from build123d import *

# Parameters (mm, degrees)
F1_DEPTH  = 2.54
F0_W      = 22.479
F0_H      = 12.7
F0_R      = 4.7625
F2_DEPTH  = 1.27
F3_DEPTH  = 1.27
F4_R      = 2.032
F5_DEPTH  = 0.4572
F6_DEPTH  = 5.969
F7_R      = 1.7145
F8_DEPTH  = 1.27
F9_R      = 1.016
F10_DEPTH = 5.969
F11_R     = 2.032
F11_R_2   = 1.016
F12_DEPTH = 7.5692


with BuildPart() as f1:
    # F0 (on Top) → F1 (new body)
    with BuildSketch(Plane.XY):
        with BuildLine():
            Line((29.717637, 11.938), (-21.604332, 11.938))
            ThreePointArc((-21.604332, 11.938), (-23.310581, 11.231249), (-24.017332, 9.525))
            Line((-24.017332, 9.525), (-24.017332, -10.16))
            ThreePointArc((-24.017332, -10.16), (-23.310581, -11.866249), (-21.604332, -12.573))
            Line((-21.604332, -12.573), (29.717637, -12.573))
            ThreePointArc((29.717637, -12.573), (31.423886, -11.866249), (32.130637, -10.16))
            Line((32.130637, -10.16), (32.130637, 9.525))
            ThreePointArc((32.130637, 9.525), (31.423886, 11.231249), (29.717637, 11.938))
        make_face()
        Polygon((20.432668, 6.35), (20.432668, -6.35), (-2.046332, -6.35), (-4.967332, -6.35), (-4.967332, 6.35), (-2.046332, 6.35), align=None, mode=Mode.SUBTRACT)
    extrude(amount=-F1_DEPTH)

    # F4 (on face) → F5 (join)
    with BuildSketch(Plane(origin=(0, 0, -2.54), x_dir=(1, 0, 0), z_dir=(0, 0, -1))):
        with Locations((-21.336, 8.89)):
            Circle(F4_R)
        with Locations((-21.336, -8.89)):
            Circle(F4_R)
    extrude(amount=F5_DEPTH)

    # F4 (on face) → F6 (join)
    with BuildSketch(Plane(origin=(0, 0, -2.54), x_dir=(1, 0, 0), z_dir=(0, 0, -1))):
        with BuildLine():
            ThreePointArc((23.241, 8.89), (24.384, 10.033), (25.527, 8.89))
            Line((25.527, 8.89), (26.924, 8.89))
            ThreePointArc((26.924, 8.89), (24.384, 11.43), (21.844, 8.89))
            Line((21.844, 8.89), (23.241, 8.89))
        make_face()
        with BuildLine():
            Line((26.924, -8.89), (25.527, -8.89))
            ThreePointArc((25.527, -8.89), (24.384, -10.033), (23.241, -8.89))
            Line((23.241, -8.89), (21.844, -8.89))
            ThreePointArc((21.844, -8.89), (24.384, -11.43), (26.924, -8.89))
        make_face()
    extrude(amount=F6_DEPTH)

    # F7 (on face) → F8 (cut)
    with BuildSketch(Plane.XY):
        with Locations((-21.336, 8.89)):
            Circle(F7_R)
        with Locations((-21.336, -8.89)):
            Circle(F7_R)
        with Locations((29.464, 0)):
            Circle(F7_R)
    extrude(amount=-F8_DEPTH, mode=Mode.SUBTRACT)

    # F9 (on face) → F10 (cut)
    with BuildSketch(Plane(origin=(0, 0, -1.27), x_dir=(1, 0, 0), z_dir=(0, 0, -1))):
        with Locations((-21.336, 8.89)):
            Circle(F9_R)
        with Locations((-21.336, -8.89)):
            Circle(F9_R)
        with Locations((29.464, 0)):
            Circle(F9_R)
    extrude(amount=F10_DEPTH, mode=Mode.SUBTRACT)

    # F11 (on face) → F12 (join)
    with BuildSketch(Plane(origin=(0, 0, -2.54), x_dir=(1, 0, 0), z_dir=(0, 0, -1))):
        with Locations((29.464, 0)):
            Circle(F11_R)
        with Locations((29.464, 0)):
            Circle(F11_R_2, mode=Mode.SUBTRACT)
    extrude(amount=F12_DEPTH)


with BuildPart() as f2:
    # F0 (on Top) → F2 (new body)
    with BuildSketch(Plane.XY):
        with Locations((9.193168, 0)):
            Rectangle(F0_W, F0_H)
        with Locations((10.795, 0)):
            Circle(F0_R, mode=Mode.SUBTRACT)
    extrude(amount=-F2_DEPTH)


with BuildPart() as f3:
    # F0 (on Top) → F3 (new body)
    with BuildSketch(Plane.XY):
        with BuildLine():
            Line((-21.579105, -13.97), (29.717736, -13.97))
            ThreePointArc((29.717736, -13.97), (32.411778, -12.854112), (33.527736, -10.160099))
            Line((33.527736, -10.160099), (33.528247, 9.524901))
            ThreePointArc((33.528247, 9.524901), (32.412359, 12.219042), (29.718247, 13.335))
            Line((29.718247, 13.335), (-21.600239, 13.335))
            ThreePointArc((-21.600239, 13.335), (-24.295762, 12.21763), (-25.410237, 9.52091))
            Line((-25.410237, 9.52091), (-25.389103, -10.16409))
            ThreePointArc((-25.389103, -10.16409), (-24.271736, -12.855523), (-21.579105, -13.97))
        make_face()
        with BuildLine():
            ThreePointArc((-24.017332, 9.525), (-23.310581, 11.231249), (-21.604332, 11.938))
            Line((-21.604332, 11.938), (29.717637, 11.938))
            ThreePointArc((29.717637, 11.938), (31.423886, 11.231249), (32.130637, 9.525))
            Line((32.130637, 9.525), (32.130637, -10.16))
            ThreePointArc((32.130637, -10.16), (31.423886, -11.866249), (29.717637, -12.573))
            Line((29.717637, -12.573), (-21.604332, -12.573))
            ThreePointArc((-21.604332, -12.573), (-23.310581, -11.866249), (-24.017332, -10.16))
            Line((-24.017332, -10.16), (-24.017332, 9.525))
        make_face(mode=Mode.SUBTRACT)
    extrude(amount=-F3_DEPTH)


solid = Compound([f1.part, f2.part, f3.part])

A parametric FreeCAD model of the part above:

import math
import FreeCAD as App
import Part
import Sketcher

V = App.Vector
Q = App.Units.Quantity

doc = App.newDocument("Part")
body = doc.addObject("PartDesign::Body", "Body")

sketch1 = body.newObject("Sketcher::SketchObject", "Sketch")
sketch1.AttachmentSupport = (doc.getObject("XY_Plane"), [""])
sketch1.MapMode = "FlatFace"
sketch1.addGeometry(Part.LineSegment(V(29.7, 11.9, 0), V(-21.6, 11.9, 0)), False)
sketch1.addGeometry(Part.ArcOfCircle(Part.Circle(V(-21.6, 9.5, 0), V(0, 0, 1), 2.4), math.radians(90), math.radians(180)), False)
sketch1.addGeometry(Part.LineSegment(V(-24, 9.5, 0), V(-24, -10.2, 0)), False)
sketch1.addGeometry(Part.ArcOfCircle(Part.Circle(V(-21.6, -10.2, 0), V(0, 0, 1), 2.4), math.radians(180), math.radians(270)), False)
sketch1.addGeometry(Part.LineSegment(V(-21.6, -12.6, 0), V(29.7, -12.6, 0)), False)
sketch1.addGeometry(Part.ArcOfCircle(Part.Circle(V(29.7, -10.2, 0), V(0, 0, 1), 2.4), math.radians(-90), math.radians(0)), False)
sketch1.addGeometry(Part.LineSegment(V(32.1, -10.2, 0), V(32.1, 9.5, 0)), False)
sketch1.addGeometry(Part.ArcOfCircle(Part.Circle(V(29.7, 9.5, 0), V(0, 0, 1), 2.4), math.radians(0), math.radians(90)), False)
sketch1.addGeometry(Part.LineSegment(V(-5, 6.3, 0), V(20.4, 6.3, 0)), False)
sketch1.addGeometry(Part.LineSegment(V(20.4, 6.3, 0), V(20.4, -6.3, 0)), False)
sketch1.addGeometry(Part.LineSegment(V(20.4, -6.3, 0), V(-5, -6.3, 0)), False)
sketch1.addGeometry(Part.LineSegment(V(-5, -6.3, 0), V(-5, 6.3, 0)), False)
sketch1.addConstraint(Sketcher.Constraint("Tangent", 0, 2, 1, 1))
sketch1.addConstraint(Sketcher.Constraint("Tangent", 1, 2, 2, 1))
sketch1.addConstraint(Sketcher.Constraint("Tangent", 2, 2, 3, 1))
sketch1.addConstraint(Sketcher.Constraint("Tangent", 3, 2, 4, 1))
sketch1.addConstraint(Sketcher.Constraint("Tangent", 4, 2, 5, 1))
sketch1.addConstraint(Sketcher.Constraint("Tangent", 5, 2, 6, 1))
sketch1.addConstraint(Sketcher.Constraint("Tangent", 6, 2, 7, 1))
sketch1.addConstraint(Sketcher.Constraint("Tangent", 7, 2, 0, 1))
sketch1.addConstraint(Sketcher.Constraint("Coincident", 8, 2, 9, 1))
sketch1.addConstraint(Sketcher.Constraint("Coincident", 9, 2, 10, 1))
sketch1.addConstraint(Sketcher.Constraint("Coincident", 10, 2, 11, 1))
sketch1.addConstraint(Sketcher.Constraint("Coincident", 11, 2, 8, 1))
sketch1.addConstraint(Sketcher.Constraint("Horizontal", 0))
sketch1.addConstraint(Sketcher.Constraint("Vertical", 2))
sketch1.addConstraint(Sketcher.Constraint("Horizontal", 4))
sketch1.addConstraint(Sketcher.Constraint("Vertical", 6))
sketch1.addConstraint(Sketcher.Constraint("Horizontal", 8))
sketch1.addConstraint(Sketcher.Constraint("Vertical", 9))
sketch1.addConstraint(Sketcher.Constraint("Horizontal", 10))
sketch1.addConstraint(Sketcher.Constraint("Vertical", 11))
sketch1.addConstraint(Sketcher.Constraint("Equal", 1, 3))
sketch1.addConstraint(Sketcher.Constraint("Equal", 3, 5))
sketch1.addConstraint(Sketcher.Constraint("Equal", 5, 7))
sketch1.addConstraint(Sketcher.Constraint("DistanceX", 8, 1, 8, 2, Q("1 in")))
sketch1.addConstraint(Sketcher.Constraint("DistanceY", 9, 2, 9, 1, Q("0.5 in")))
sketch1.addConstraint(Sketcher.Constraint("Radius", 1, Q("0.095 in")))
sketch1.addConstraint(Sketcher.Constraint("DistanceY", 3, 3, -1, 1, Q("0.4 in")))
sketch1.addConstraint(Sketcher.Constraint("DistanceY", 2, 2, 2, 1, Q("0.775 in")))
sketch1.addConstraint(Sketcher.Constraint("DistanceY", -1, 1, 8, 2, Q("0.25 in")))
sketch1.addConstraint(Sketcher.Constraint("DistanceX", 2, 2, 10, 2, Q("0.75 in")))
sketch1.addConstraint(Sketcher.Constraint("DistanceX", 0, 2, 0, 1, 51.321969))
sketch1.addConstraint(Sketcher.Constraint("DistanceX", -1, 1, 5, 3, 29.717638))
pad1 = body.newObject("PartDesign::Pad", "Pad")
pad1.Profile = sketch1
pad1.Length = Q("0.1 in")
pad1.Reversed = True

sketch2 = body.newObject("Sketcher::SketchObject", "Sketch001")
sketch2.AttachmentSupport = (doc.getObject("XY_Plane"), [""])
sketch2.MapMode = "FlatFace"
sketch2.AttachmentOffset = App.Placement(V(0, 0, -0.1 * 25.4), App.Rotation())
sketch2.addGeometry(Part.Circle(V(-21.3, -8.9, 0), V(0, 0, 1), 2), False)
sketch2.addGeometry(Part.Circle(V(-21.3, 8.9, 0), V(0, 0, 1), 2), False)
sketch2.addConstraint(Sketcher.Constraint("Equal", 0, 1))
sketch2.addConstraint(Sketcher.Constraint("Symmetric", 0, 3, 1, 3, -1))
sketch2.addConstraint(Sketcher.Constraint("Diameter", 0, Q("0.16 in")))
sketch2.addConstraint(Sketcher.Constraint("DistanceY", 0, 3, 1, 3, Q("0.7 in")))
sketch2.addConstraint(Sketcher.Constraint("DistanceX", 0, 3, -1, 1, Q("0.84 in")))
pad2 = body.newObject("PartDesign::Pad", "Pad001")
pad2.Profile = sketch2
pad2.Length = Q("0.018 in")
pad2.Reversed = True

sketch3 = body.newObject("Sketcher::SketchObject", "Sketch002")
sketch3.AttachmentSupport = (doc.getObject("XY_Plane"), [""])
sketch3.MapMode = "FlatFace"
sketch3.AttachmentOffset = App.Placement(V(0, 0, -0.1 * 25.4), App.Rotation())
sketch3.addGeometry(Part.ArcOfCircle(Part.Circle(V(24.4, -8.9, 0), V(0, 0, 1), 1.1), math.radians(180), math.radians(360)), False)
sketch3.addGeometry(Part.LineSegment(V(25.5, -8.9, 0), V(26.9, -8.9, 0)), False)
sketch3.addGeometry(Part.ArcOfCircle(Part.Circle(V(24.4, -8.9, 0), V(0, 0, 1), 2.5), math.radians(180), math.radians(360)), False)
sketch3.addGeometry(Part.LineSegment(V(21.8, -8.9, 0), V(23.2, -8.9, 0)), False)
sketch3.addGeometry(Part.LineSegment(V(26.9, 8.9, 0), V(25.5, 8.9, 0)), False)
sketch3.addGeometry(Part.ArcOfCircle(Part.Circle(V(24.4, 8.9, 0), V(0, 0, 1), 1.1), math.radians(0), math.radians(180)), False)
sketch3.addGeometry(Part.LineSegment(V(23.2, 8.9, 0), V(21.8, 8.9, 0)), False)
sketch3.addGeometry(Part.ArcOfCircle(Part.Circle(V(24.4, 8.9, 0), V(0, 0, 1), 2.5), math.radians(0), math.radians(180)), False)
sketch3.addConstraint(Sketcher.Constraint("Coincident", 0, 2, 1, 1))
sketch3.addConstraint(Sketcher.Constraint("Coincident", 1, 2, 2, 2))
sketch3.addConstraint(Sketcher.Constraint("Coincident", 2, 1, 3, 1))
sketch3.addConstraint(Sketcher.Constraint("Coincident", 3, 2, 0, 1))
sketch3.addConstraint(Sketcher.Constraint("Coincident", 4, 2, 5, 1))
sketch3.addConstraint(Sketcher.Constraint("Coincident", 5, 2, 6, 1))
sketch3.addConstraint(Sketcher.Constraint("Coincident", 6, 2, 7, 2))
sketch3.addConstraint(Sketcher.Constraint("Coincident", 7, 1, 4, 1))
sketch3.addConstraint(Sketcher.Constraint("Horizontal", 1))
sketch3.addConstraint(Sketcher.Constraint("Horizontal", 3))
sketch3.addConstraint(Sketcher.Constraint("Horizontal", 4))
sketch3.addConstraint(Sketcher.Constraint("Horizontal", 6))
sketch3.addConstraint(Sketcher.Constraint("Coincident", 2, 3, 0, 3))
sketch3.addConstraint(Sketcher.Constraint("Coincident", 7, 3, 5, 3))
sketch3.addConstraint(Sketcher.Constraint("Equal", 0, 5))
sketch3.addConstraint(Sketcher.Constraint("Equal", 2, 7))
sketch3.addConstraint(Sketcher.Constraint("Symmetric", 0, 3, 5, 3, -1))
sketch3.addConstraint(Sketcher.Constraint("Horizontal", 2, 3, 0, 2))
sketch3.addConstraint(Sketcher.Constraint("Horizontal", 1, 2, 2, 1))
sketch3.addConstraint(Sketcher.Constraint("Horizontal", 7, 3, 4, 2))
sketch3.addConstraint(Sketcher.Constraint("Horizontal", 4, 2, 5, 2))
sketch3.addConstraint(Sketcher.Constraint("Radius", 2, Q("0.1 in")))
sketch3.addConstraint(Sketcher.Constraint("Radius", 0, Q("0.045 in")))
sketch3.addConstraint(Sketcher.Constraint("DistanceY", 0, 3, 5, 3, Q("0.7 in")))
sketch3.addConstraint(Sketcher.Constraint("DistanceX", -1, 1, 0, 3, Q("0.96 in")))
pad3 = body.newObject("PartDesign::Pad", "Pad002")
pad3.Profile = sketch3
pad3.Length = Q("0.235 in")
pad3.Reversed = True

sketch4 = body.newObject("Sketcher::SketchObject", "Sketch003")
sketch4.AttachmentSupport = (doc.getObject("XY_Plane"), [""])
sketch4.MapMode = "FlatFace"
sketch4.addGeometry(Part.Circle(V(-21.3, 8.9, 0), V(0, 0, 1), 1.7), False)
sketch4.addGeometry(Part.Circle(V(-21.3, -8.9, 0), V(0, 0, 1), 1.7), False)
sketch4.addGeometry(Part.Circle(V(29.5, 0, 0), V(0, 0, 1), 1.7), False)
sketch4.addConstraint(Sketcher.Constraint("Equal", 0, 1))
sketch4.addConstraint(Sketcher.Constraint("Equal", 1, 2))
sketch4.addConstraint(Sketcher.Constraint("Symmetric", 0, 3, 1, 3, -1))
sketch4.addConstraint(Sketcher.Constraint("PointOnObject", 2, 3, -1))
sketch4.addConstraint(Sketcher.Constraint("Diameter", 0, Q("0.135 in")))
sketch4.addConstraint(Sketcher.Constraint("DistanceX", 0, 3, 2, 3, Q("2 in")))
sketch4.addConstraint(Sketcher.Constraint("DistanceY", 1, 3, 0, 3, Q("0.7 in")))
sketch4.addConstraint(Sketcher.Constraint("DistanceX", 0, 3, -1, 1, Q("0.84 in")))
pocket1 = body.newObject("PartDesign::Pocket", "Pocket")
pocket1.Profile = sketch4
pocket1.Length = Q("0.05 in")

sketch5 = body.newObject("Sketcher::SketchObject", "Sketch004")
sketch5.AttachmentSupport = (doc.getObject("XY_Plane"), [""])
sketch5.MapMode = "FlatFace"
sketch5.AttachmentOffset = App.Placement(V(0, 0, -0.05 * 25.4), App.Rotation())
sketch5.addGeometry(Part.Circle(V(-21.3, -8.9, 0), V(0, 0, 1), 1), False)
sketch5.addGeometry(Part.Circle(V(-21.3, 8.9, 0), V(0, 0, 1), 1), False)
sketch5.addGeometry(Part.Circle(V(29.5, 0, 0), V(0, 0, 1), 1), False)
sketch5.addConstraint(Sketcher.Constraint("Equal", 0, 1))
sketch5.addConstraint(Sketcher.Constraint("Equal", 1, 2))
sketch5.addConstraint(Sketcher.Constraint("Symmetric", 0, 3, 1, 3, -1))
sketch5.addConstraint(Sketcher.Constraint("PointOnObject", 2, 3, -1))
sketch5.addConstraint(Sketcher.Constraint("Diameter", 0, Q("0.08 in")))
sketch5.addConstraint(Sketcher.Constraint("DistanceX", 0, 3, 2, 3, Q("2 in")))
sketch5.addConstraint(Sketcher.Constraint("DistanceY", 0, 3, 1, 3, Q("0.7 in")))
sketch5.addConstraint(Sketcher.Constraint("DistanceX", 0, 3, -1, 1, Q("0.84 in")))
pocket2 = body.newObject("PartDesign::Pocket", "Pocket001")
pocket2.Profile = sketch5
pocket2.Length = Q("0.235 in")

sketch6 = body.newObject("Sketcher::SketchObject", "Sketch005")
sketch6.AttachmentSupport = (doc.getObject("XY_Plane"), [""])
sketch6.MapMode = "FlatFace"
sketch6.AttachmentOffset = App.Placement(V(0, 0, -0.1 * 25.4), App.Rotation())
sketch6.addGeometry(Part.Circle(V(29.5, 0, 0), V(0, 0, 1), 2), False)
sketch6.addGeometry(Part.Circle(V(29.5, 0, 0), V(0, 0, 1), 1), False)
sketch6.addConstraint(Sketcher.Constraint("Coincident", 1, 3, 0, 3))
sketch6.addConstraint(Sketcher.Constraint("PointOnObject", 0, 3, -1))
sketch6.addConstraint(Sketcher.Constraint("Diameter", 0, Q("0.16 in")))
sketch6.addConstraint(Sketcher.Constraint("Diameter", 1, Q("0.08 in")))
sketch6.addConstraint(Sketcher.Constraint("DistanceX", -1, 1, 0, 3, Q("1.16 in")))
pad4 = body.newObject("PartDesign::Pad", "Pad003")
pad4.Profile = sketch6
pad4.Length = Q("0.298 in")
pad4.Reversed = True
body2 = doc.addObject("PartDesign::Body", "Body001")

sketch7 = body2.newObject("Sketcher::SketchObject", "Sketch006")
sketch7.AttachmentSupport = (doc.getObject("XY_Plane001"), [""])
sketch7.MapMode = "FlatFace"
sketch7.addGeometry(Part.LineSegment(V(-2, 6.3, 0), V(-2, -6.3, 0)), False)
sketch7.addGeometry(Part.LineSegment(V(-2, -6.3, 0), V(20.4, -6.3, 0)), False)
sketch7.addGeometry(Part.LineSegment(V(20.4, -6.3, 0), V(20.4, 6.3, 0)), False)
sketch7.addGeometry(Part.LineSegment(V(20.4, 6.3, 0), V(-2, 6.3, 0)), False)
sketch7.addGeometry(Part.Circle(V(10.8, 0, 0), V(0, 0, 1), 4.8), False)
sketch7.addConstraint(Sketcher.Constraint("Coincident", 0, 2, 1, 1))
sketch7.addConstraint(Sketcher.Constraint("Coincident", 1, 2, 2, 1))
sketch7.addConstraint(Sketcher.Constraint("Coincident", 2, 2, 3, 1))
sketch7.addConstraint(Sketcher.Constraint("Coincident", 3, 2, 0, 1))
sketch7.addConstraint(Sketcher.Constraint("Vertical", 0))
sketch7.addConstraint(Sketcher.Constraint("Horizontal", 1))
sketch7.addConstraint(Sketcher.Constraint("Vertical", 2))
sketch7.addConstraint(Sketcher.Constraint("Horizontal", 3))
sketch7.addConstraint(Sketcher.Constraint("PointOnObject", 4, 3, -1))
sketch7.addConstraint(Sketcher.Constraint("Diameter", 4, Q("0.375 in")))
sketch7.addConstraint(Sketcher.Constraint("DistanceY", 0, 2, 0, 1, Q("0.5 in")))
sketch7.addConstraint(Sketcher.Constraint("DistanceX", 1, 1, 1, 2, Q("0.885 in")))
sketch7.addConstraint(Sketcher.Constraint("DistanceY", 0, 2, -1, 1, Q("0.25 in")))
sketch7.addConstraint(Sketcher.Constraint("DistanceX", -1, 1, 4, 3, Q("0.425 in")))
sketch7.addConstraint(Sketcher.Constraint("DistanceX", 0, 2, -1, 1, 2.046332))
pad5 = body2.newObject("PartDesign::Pad", "Pad004")
pad5.Profile = sketch7
pad5.Length = Q("0.05 in")
pad5.Reversed = True
body3 = doc.addObject("PartDesign::Body", "Body002")

sketch8 = body3.newObject("Sketcher::SketchObject", "Sketch007")
sketch8.AttachmentSupport = (doc.getObject("XY_Plane002"), [""])
sketch8.MapMode = "FlatFace"
sketch8.addGeometry(Part.LineSegment(V(-21.6, -14, 0), V(29.7, -14, 0)), False)
sketch8.addGeometry(Part.ArcOfCircle(Part.Circle(V(29.7, -10.2, 0), V(0, 0, 1), 3.8), math.radians(-90), math.radians(0)), False)
sketch8.addGeometry(Part.LineSegment(V(33.5, -10.2, 0), V(33.5, 9.5, 0)), False)
sketch8.addGeometry(Part.ArcOfCircle(Part.Circle(V(29.7, 9.5, 0), V(0, 0, 1), 3.8), math.radians(0), math.radians(90)), False)
sketch8.addGeometry(Part.LineSegment(V(29.7, 13.3, 0), V(-21.6, 13.3, 0)), False)
sketch8.addGeometry(Part.ArcOfCircle(Part.Circle(V(-21.6, 9.5, 0), V(0, 0, 1), 3.8), math.radians(90), math.radians(180)), False)
sketch8.addGeometry(Part.LineSegment(V(-25.4, 9.5, 0), V(-25.4, -10.2, 0)), False)
sketch8.addGeometry(Part.ArcOfCircle(Part.Circle(V(-21.6, -10.2, 0), V(0, 0, 1), 3.8), math.radians(-180), math.radians(-90)), False)
sketch8.addGeometry(Part.LineSegment(V(-24, -10.2, 0), V(-24, 9.5, 0)), False)
sketch8.addGeometry(Part.ArcOfCircle(Part.Circle(V(-21.6, 9.5, 0), V(0, 0, 1), 2.4), math.radians(90), math.radians(180)), False)
sketch8.addGeometry(Part.LineSegment(V(-21.6, 11.9, 0), V(29.7, 11.9, 0)), False)
sketch8.addGeometry(Part.ArcOfCircle(Part.Circle(V(29.7, 9.5, 0), V(0, 0, 1), 2.4), math.radians(0), math.radians(90)), False)
sketch8.addGeometry(Part.LineSegment(V(32.1, 9.5, 0), V(32.1, -10.2, 0)), False)
sketch8.addGeometry(Part.ArcOfCircle(Part.Circle(V(29.7, -10.2, 0), V(0, 0, 1), 2.4), math.radians(-90), math.radians(0)), False)
sketch8.addGeometry(Part.LineSegment(V(29.7, -12.6, 0), V(-21.6, -12.6, 0)), False)
sketch8.addGeometry(Part.ArcOfCircle(Part.Circle(V(-21.6, -10.2, 0), V(0, 0, 1), 2.4), math.radians(180), math.radians(270)), False)
sketch8.addConstraint(Sketcher.Constraint("Tangent", 0, 2, 1, 1))
sketch8.addConstraint(Sketcher.Constraint("Tangent", 1, 2, 2, 1))
sketch8.addConstraint(Sketcher.Constraint("Tangent", 2, 2, 3, 1))
sketch8.addConstraint(Sketcher.Constraint("Tangent", 3, 2, 4, 1))
sketch8.addConstraint(Sketcher.Constraint("Tangent", 4, 2, 5, 1))
sketch8.addConstraint(Sketcher.Constraint("Tangent", 5, 2, 6, 1))
sketch8.addConstraint(Sketcher.Constraint("Tangent", 6, 2, 7, 1))
sketch8.addConstraint(Sketcher.Constraint("Tangent", 7, 2, 0, 1))
sketch8.addConstraint(Sketcher.Constraint("Tangent", 8, 2, 9, 2))
sketch8.addConstraint(Sketcher.Constraint("Tangent", 9, 1, 10, 1))
sketch8.addConstraint(Sketcher.Constraint("Tangent", 10, 2, 11, 2))
sketch8.addConstraint(Sketcher.Constraint("Tangent", 11, 1, 12, 1))
sketch8.addConstraint(Sketcher.Constraint("Tangent", 12, 2, 13, 2))
sketch8.addConstraint(Sketcher.Constraint("Tangent", 13, 1, 14, 1))
sketch8.addConstraint(Sketcher.Constraint("Tangent", 14, 2, 15, 2))
sketch8.addConstraint(Sketcher.Constraint("Tangent", 15, 1, 8, 1))
sketch8.addConstraint(Sketcher.Constraint("Horizontal", 0))
sketch8.addConstraint(Sketcher.Constraint("Horizontal", 4))
sketch8.addConstraint(Sketcher.Constraint("Vertical", 8))
sketch8.addConstraint(Sketcher.Constraint("Horizontal", 10))
sketch8.addConstraint(Sketcher.Constraint("Vertical", 12))
sketch8.addConstraint(Sketcher.Constraint("Horizontal", 14))
sketch8.addConstraint(Sketcher.Constraint("Equal", 1, 3))
sketch8.addConstraint(Sketcher.Constraint("Equal", 3, 5))
sketch8.addConstraint(Sketcher.Constraint("Equal", 5, 7))
sketch8.addConstraint(Sketcher.Constraint("Equal", 9, 11))
sketch8.addConstraint(Sketcher.Constraint("Equal", 11, 13))
sketch8.addConstraint(Sketcher.Constraint("Equal", 13, 15))
sketch8.addConstraint(Sketcher.Constraint("Horizontal", 5, 3, 9, 3))
sketch8.addConstraint(Sketcher.Constraint("Horizontal", 7, 3, 13, 3))
sketch8.addConstraint(Sketcher.Constraint("Radius", 1, Q("0.15 in")))
sketch8.addConstraint(Sketcher.Constraint("Radius", 9, Q("0.095 in")))
sketch8.addConstraint(Sketcher.Constraint("DistanceY", 1, 3, -1, 1, Q("0.4 in")))
sketch8.addConstraint(Sketcher.Constraint("DistanceY", 8, 1, 8, 2, Q("0.775 in")))
sketch8.addConstraint(Sketcher.Constraint("DistanceX", 0, 1, 0, 2, 51.296841))
sketch8.addConstraint(Sketcher.Constraint("DistanceX", 10, 1, 10, 2, 51.321969))
sketch8.addConstraint(Sketcher.Constraint("DistanceY", 1, 2, -1, 1, 10.160099))
sketch8.addConstraint(Sketcher.Constraint("DistanceX", 12, 2, 1, 2, 1.397099))
sketch8.addConstraint(Sketcher.Constraint("DistanceX", 4, 2, 4, 1, 51.318486))
sketch8.addConstraint(Sketcher.Constraint("DistanceX", 5, 3, -1, 1, 21.600239))
pad6 = body3.newObject("PartDesign::Pad", "Pad005")
pad6.Profile = sketch8
pad6.Length = Q("0.05 in")
pad6.Reversed = True

doc.recompute()
